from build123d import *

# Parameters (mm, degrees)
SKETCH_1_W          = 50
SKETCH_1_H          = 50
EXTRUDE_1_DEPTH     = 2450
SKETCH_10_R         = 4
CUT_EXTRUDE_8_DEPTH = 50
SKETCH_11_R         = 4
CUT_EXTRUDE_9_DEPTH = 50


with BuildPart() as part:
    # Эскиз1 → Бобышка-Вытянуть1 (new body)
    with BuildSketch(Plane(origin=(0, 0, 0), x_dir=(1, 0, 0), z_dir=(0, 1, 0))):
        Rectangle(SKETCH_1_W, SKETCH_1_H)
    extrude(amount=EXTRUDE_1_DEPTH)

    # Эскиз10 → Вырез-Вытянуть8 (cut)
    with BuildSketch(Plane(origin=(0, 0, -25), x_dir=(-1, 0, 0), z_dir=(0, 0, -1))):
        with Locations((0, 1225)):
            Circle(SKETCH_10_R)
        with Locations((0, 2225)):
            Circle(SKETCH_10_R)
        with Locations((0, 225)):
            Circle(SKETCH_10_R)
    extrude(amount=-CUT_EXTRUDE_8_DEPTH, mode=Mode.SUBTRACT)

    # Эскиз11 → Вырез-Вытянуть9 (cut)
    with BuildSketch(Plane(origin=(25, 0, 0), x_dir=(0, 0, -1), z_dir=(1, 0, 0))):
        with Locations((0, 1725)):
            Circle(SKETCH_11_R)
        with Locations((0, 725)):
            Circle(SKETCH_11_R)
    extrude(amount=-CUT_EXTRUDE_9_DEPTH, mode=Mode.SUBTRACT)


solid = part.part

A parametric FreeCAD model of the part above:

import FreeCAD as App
import Part
import Sketcher
from FreeCAD import Vector

doc = App.newDocument("Part")
params = doc.addObject("Spreadsheet::Sheet", "Params")
for row, (alias, value) in enumerate([
    ("sketch1_width", "50 mm"),
    ("pad1_length", "2450 mm"),
    ("sketch2_diameter", "8 mm"),
    ("pocket1_length", "50 mm"),
    ("sketch3_diameter", "8 mm"),
    ("pocket2_length", "50 mm"),
], start=1):
    params.set(f"A{row}", alias)
    params.set(f"B{row}", "=" + value)
    params.setAlias(f"B{row}", alias)

body = doc.addObject("PartDesign::Body", "Body")

sketch1 = body.newObject("Sketcher::SketchObject", "Sketch")
sketch1.AttachmentSupport = (doc.getObject("XZ_Plane"), [""])
sketch1.MapMode = "FlatFace"
sketch1.addGeometry([
    Part.LineSegment(Vector(-25, -25, 0), Vector(-25, 25, 0)),
    Part.LineSegment(Vector(-25, 25, 0), Vector(25, 25, 0)),
    Part.LineSegment(Vector(25, 25, 0), Vector(25, -25, 0)),
    Part.LineSegment(Vector(25, -25, 0), Vector(-25, -25, 0)),
], False)
sketch1.addConstraint([
    Sketcher.Constraint("Coincident", 0, 2, 1, 1),
    Sketcher.Constraint("Coincident", 1, 2, 2, 1),
    Sketcher.Constraint("Coincident", 2, 2, 3, 1),
    Sketcher.Constraint("Coincident", 3, 2, 0, 1),
    Sketcher.Constraint("Vertical", 0),
    Sketcher.Constraint("Horizontal", 1),
    Sketcher.Constraint("Vertical", 2),
    Sketcher.Constraint("Horizontal", 3),
    Sketcher.Constraint("Symmetric", 0, 2, 2, 2, -1, 1),
    Sketcher.Constraint("Equal", 3, 0),
    Sketcher.Constraint("DistanceX", 1, 1, 1, 2, 50.0),
])
sketch1.setExpression("Constraints[10]", "Params.sketch1_width")
pad1 = body.newObject("PartDesign::Pad", "Pad")
pad1.Profile = sketch1
pad1.setExpression("Length", "Params.pad1_length")
pad1.Reversed = True

sketch2 = body.newObject("Sketcher::SketchObject", "Sketch001")
sketch2.AttachmentSupport = (doc.getObject("XY_Plane"), [""])
sketch2.MapMode = "FlatFace"
sketch2.AttachmentOffset = App.Placement(Vector(0, 0, -25), App.Rotation())
sketch2.addGeometry([
    Part.Circle(Vector(0, 1225, 0), Vector(0, 0, 1), 4),
    Part.Circle(Vector(0, 2225, 0), Vector(0, 0, 1), 4),
    Part.Circle(Vector(0, 225, 0), Vector(0, 0, 1), 4),
], False)
sketch2.addConstraint([
    Sketcher.Constraint("Equal", 0, 1),
    Sketcher.Constraint("Equal", 1, 2),
    Sketcher.Constraint("PointOnObject", 0, 3, -2),
    Sketcher.Constraint("PointOnObject", 1, 3, -2),
    Sketcher.Constraint("PointOnObject", 2, 3, -2),
    Sketcher.Constraint("Diameter", 0, 8.0),
    Sketcher.Constraint("DistanceY", -1, 1, 0, 3, 1225.0),
    Sketcher.Constraint("DistanceY", -1, 1, 1, 3, 2225.0),
    Sketcher.Constraint("DistanceY", -1, 1, 2, 3, 225.0),
])
sketch2.setExpression("Constraints[5]", "Params.sketch2_diameter")
pocket1 = body.newObject("PartDesign::Pocket", "Pocket")
pocket1.Profile = sketch2
pocket1.setExpression("Length", "Params.pocket1_length")
pocket1.Reversed = True

sketch3 = body.newObject("Sketcher::SketchObject", "Sketch002")
sketch3.AttachmentSupport = (doc.getObject("YZ_Plane"), [""])
sketch3.MapMode = "FlatFace"
sketch3.AttachmentOffset = App.Placement(Vector(0, 0, 25), App.Rotation())
sketch3.addGeometry([
    Part.Circle(Vector(1725, 0, 0), Vector(0, 0, 1), 4),
    Part.Circle(Vector(725, 0, 0), Vector(0, 0, 1), 4),
], False)
sketch3.addConstraint([
    Sketcher.Constraint("Equal", 0, 1),
    Sketcher.Constraint("PointOnObject", 0, 3, -1),
    Sketcher.Constraint("PointOnObject", 1, 3, -1),
    Sketcher.Constraint("Diameter", 0, 8.0),
    Sketcher.Constraint("DistanceX", -1, 1, 0, 3, 1725.0),
    Sketcher.Constraint("DistanceX", -1, 1, 1, 3, 725.0),
])
sketch3.setExpression("Constraints[3]", "Params.sketch3_diameter")
pocket2 = body.newObject("PartDesign::Pocket", "Pocket001")
pocket2.Profile = sketch3
pocket2.setExpression("Length", "Params.pocket2_length")

doc.recompute()
